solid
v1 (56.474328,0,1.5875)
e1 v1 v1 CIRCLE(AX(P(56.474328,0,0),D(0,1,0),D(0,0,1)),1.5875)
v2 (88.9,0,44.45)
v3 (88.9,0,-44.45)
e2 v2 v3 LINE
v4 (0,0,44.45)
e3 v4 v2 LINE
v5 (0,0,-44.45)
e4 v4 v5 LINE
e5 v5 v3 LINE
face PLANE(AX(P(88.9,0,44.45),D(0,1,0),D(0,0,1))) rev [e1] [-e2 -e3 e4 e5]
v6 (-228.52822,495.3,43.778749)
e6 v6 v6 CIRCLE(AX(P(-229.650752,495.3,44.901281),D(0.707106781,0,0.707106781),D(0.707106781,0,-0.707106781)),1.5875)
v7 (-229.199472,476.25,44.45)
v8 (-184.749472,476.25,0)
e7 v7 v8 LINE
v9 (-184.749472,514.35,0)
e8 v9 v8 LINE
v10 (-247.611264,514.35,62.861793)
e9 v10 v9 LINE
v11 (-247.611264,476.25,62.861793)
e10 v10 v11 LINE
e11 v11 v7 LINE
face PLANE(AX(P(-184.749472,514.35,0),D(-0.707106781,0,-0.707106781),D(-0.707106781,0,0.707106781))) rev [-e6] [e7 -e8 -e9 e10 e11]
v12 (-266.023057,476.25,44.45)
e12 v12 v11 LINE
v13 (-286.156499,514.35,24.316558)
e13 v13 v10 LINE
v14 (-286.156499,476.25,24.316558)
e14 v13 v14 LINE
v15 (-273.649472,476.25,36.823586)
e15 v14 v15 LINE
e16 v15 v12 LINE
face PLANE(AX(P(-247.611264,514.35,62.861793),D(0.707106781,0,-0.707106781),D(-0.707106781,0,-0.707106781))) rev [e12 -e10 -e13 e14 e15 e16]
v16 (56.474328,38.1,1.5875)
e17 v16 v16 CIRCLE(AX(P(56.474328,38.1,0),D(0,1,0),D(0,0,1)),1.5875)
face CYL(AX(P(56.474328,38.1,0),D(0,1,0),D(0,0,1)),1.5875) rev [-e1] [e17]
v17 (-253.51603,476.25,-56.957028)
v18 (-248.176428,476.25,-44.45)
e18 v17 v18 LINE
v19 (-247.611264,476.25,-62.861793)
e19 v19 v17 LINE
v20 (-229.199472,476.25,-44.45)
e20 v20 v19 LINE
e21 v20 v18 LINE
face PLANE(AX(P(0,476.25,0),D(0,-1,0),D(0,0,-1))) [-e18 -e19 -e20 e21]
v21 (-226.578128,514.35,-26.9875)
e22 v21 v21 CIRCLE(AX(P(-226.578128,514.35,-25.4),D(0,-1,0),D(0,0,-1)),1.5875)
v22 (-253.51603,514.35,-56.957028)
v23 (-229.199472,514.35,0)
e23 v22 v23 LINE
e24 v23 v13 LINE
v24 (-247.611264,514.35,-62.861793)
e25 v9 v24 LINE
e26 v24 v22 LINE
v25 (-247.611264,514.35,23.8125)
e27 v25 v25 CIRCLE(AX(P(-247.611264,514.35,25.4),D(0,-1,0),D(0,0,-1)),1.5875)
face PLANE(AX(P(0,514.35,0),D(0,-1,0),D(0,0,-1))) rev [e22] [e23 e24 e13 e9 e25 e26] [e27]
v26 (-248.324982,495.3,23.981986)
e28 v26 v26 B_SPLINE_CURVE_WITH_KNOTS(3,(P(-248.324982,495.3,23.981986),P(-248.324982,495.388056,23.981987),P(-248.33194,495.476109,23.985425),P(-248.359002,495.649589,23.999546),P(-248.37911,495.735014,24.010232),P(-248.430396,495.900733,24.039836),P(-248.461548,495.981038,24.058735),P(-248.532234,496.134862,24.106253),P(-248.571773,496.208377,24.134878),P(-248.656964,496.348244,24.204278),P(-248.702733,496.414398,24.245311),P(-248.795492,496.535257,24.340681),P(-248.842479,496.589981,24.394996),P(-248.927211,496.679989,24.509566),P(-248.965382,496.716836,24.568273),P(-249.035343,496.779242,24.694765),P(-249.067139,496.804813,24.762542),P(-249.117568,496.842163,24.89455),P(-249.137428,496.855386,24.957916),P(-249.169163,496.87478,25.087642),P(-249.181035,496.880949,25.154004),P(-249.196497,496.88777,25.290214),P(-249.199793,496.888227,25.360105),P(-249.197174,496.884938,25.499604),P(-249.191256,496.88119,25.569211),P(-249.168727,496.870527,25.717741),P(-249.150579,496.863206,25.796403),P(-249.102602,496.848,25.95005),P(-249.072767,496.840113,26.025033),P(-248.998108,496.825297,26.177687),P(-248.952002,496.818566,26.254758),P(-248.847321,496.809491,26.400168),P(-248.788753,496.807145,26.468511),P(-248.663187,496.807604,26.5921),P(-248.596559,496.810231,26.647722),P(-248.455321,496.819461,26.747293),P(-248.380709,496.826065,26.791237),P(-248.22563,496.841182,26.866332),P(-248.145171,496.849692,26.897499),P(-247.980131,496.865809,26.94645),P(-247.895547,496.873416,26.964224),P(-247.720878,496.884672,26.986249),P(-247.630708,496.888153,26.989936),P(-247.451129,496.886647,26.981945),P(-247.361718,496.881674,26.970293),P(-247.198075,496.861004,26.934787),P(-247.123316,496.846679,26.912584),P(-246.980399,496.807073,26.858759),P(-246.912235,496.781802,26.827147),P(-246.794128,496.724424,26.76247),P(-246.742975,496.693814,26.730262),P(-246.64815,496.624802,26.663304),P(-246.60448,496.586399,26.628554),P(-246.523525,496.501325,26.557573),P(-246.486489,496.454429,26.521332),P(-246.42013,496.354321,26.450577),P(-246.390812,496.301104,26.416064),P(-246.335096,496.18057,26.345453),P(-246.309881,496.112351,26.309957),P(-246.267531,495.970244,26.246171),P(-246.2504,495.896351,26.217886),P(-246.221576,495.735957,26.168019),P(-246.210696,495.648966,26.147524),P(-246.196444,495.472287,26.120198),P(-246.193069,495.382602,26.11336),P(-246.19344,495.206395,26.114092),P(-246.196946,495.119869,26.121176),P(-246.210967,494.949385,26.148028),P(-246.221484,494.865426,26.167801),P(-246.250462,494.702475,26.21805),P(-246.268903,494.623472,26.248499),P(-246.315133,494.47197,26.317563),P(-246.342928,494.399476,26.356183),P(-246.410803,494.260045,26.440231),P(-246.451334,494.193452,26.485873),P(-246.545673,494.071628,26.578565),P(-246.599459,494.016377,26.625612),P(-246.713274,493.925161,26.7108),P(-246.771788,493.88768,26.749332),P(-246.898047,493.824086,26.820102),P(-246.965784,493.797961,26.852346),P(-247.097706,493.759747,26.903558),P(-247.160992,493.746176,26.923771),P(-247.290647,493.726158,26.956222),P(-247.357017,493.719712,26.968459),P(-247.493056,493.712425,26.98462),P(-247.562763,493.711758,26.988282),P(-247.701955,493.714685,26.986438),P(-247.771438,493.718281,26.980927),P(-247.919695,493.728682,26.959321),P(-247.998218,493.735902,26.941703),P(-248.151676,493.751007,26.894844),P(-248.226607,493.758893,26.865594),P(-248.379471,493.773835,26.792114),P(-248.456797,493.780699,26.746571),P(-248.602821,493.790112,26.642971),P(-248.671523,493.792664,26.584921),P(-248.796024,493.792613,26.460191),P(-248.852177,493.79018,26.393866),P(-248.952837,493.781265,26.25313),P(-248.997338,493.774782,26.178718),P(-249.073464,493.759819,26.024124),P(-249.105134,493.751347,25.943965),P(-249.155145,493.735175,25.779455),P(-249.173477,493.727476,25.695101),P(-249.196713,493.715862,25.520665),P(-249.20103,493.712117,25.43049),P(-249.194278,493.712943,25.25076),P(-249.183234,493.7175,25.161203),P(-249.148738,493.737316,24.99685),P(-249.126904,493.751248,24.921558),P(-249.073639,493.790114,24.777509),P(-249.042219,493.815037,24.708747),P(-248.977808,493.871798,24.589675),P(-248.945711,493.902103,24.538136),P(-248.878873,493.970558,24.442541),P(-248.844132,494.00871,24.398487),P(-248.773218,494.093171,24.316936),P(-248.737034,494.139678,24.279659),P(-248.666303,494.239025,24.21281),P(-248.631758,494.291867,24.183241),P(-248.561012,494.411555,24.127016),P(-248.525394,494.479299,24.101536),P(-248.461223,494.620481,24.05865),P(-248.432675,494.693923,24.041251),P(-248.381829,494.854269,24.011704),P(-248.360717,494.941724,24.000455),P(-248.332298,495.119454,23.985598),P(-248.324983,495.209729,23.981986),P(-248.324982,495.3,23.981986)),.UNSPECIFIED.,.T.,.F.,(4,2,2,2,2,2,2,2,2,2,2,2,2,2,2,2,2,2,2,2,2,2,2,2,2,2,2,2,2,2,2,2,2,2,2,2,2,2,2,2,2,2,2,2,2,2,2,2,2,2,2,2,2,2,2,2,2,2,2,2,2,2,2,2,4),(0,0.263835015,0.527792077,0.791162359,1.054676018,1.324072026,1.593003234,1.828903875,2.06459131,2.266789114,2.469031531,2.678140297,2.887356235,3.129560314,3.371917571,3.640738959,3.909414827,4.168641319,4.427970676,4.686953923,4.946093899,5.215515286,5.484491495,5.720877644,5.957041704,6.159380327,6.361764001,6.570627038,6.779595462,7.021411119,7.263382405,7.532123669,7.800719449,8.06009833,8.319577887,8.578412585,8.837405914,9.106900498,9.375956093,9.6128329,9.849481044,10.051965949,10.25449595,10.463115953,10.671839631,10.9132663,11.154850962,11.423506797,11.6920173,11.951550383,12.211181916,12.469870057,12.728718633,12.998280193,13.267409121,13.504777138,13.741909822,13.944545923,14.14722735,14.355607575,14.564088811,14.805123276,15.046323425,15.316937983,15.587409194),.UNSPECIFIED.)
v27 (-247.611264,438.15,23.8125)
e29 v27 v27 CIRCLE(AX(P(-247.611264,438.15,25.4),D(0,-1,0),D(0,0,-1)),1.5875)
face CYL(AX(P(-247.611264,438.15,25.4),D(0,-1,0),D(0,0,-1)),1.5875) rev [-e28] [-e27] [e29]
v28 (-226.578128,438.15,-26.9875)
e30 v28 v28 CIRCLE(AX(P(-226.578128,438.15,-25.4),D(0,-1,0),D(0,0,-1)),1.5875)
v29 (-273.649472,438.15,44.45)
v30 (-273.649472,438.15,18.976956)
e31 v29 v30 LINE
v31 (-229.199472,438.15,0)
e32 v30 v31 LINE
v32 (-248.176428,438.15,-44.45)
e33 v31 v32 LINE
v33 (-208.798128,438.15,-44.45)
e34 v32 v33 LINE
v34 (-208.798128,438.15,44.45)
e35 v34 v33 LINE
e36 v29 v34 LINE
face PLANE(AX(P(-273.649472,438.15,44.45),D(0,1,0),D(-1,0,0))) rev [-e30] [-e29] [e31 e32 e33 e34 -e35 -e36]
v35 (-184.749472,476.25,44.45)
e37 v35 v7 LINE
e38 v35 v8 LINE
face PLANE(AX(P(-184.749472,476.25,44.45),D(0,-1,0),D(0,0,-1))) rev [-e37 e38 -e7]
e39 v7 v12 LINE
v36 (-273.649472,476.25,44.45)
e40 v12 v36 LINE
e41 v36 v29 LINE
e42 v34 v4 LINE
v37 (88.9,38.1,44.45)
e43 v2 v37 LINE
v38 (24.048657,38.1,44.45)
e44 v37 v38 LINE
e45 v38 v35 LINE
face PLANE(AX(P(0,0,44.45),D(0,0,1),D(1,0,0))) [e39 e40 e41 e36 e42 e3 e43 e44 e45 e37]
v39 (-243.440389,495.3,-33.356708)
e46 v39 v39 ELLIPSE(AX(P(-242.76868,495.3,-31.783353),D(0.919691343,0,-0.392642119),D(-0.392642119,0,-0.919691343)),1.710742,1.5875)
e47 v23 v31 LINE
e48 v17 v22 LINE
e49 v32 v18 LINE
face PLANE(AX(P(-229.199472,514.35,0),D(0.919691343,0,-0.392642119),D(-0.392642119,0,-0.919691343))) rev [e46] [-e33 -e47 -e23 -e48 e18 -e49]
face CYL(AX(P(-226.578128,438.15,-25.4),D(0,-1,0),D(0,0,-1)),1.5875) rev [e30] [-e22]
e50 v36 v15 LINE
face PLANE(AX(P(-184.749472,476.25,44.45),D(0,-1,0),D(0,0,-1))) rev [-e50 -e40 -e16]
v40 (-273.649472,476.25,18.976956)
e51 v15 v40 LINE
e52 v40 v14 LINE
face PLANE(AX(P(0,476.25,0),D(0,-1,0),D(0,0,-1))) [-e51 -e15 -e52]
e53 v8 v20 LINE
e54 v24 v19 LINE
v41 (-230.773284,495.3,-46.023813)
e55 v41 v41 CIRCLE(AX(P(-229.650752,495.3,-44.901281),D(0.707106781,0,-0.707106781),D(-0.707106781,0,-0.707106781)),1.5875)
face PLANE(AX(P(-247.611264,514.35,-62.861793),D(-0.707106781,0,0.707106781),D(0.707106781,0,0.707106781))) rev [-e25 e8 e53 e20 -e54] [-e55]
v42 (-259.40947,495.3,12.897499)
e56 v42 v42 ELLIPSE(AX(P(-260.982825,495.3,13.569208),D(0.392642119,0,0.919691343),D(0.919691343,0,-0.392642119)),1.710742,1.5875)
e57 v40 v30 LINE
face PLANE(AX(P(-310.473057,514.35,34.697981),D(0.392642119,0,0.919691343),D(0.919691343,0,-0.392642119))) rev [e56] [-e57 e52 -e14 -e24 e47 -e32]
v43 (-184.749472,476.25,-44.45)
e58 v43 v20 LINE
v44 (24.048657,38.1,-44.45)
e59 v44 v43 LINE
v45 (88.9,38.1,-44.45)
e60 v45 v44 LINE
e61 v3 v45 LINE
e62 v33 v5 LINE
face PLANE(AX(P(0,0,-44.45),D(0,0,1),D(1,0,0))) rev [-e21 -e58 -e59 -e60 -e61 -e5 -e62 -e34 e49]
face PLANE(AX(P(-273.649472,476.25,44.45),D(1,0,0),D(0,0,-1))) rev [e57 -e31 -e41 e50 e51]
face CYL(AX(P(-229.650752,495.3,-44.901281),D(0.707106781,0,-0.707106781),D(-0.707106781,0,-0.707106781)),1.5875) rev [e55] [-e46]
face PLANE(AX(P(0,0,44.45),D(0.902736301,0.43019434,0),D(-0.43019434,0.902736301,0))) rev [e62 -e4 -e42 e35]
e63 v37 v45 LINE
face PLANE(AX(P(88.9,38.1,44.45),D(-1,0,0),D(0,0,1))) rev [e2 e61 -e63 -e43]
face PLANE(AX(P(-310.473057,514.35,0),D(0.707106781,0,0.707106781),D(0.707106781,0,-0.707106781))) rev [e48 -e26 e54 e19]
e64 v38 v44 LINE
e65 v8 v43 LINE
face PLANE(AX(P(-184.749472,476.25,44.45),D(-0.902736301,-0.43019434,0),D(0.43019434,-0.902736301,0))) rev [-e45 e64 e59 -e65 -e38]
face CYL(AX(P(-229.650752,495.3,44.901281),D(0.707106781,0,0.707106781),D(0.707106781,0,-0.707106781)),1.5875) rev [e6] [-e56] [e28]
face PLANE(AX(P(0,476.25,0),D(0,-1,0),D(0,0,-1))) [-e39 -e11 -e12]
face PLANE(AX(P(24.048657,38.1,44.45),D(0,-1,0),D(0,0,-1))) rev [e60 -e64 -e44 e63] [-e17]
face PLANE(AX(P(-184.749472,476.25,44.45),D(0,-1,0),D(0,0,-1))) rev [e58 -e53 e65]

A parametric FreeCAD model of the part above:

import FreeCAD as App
import Part
import Sketcher
from FreeCAD import Vector
Q = App.Units.Quantity


def add_polygon(sketch, points):
    """Adds a closed chain of lines whose ends are joined by coincident constraints."""
    first, n = sketch.GeometryCount, len(points)
    for a, b in zip(points, points[1:] + points[:1]):
        sketch.addGeometry(Part.LineSegment(App.Vector(*a, 0), App.Vector(*b, 0)), False)
    for i in range(n):
        sketch.addConstraint(Sketcher.Constraint("Coincident", first + i, 2, first + (i + 1) % n, 1))

doc = App.newDocument("Part")
body = doc.addObject("PartDesign::Body", "Body")

sketch1 = body.newObject("Sketcher::SketchObject", "Sketch")
sketch1.AttachmentSupport = (doc.getObject("XY_Plane"), [""])
sketch1.MapMode = "FlatFace"
add_polygon(sketch1, [(-208.798128, 438.15), (0, 0), (88.9, 0), (88.9, 38.1), (24.048657, 38.1), (-184.749472, 476.25), (-273.649472, 476.25), (-273.649472, 438.15)])
sketch1.addConstraint([
    Sketcher.Constraint("Horizontal", 1),
    Sketcher.Constraint("Vertical", 2),
    Sketcher.Constraint("Horizontal", 3),
    Sketcher.Constraint("Horizontal", 5),
    Sketcher.Constraint("Vertical", 6),
    Sketcher.Constraint("Horizontal", 7),
    Sketcher.Constraint("Coincident", 0, 2, -1, 1),
    Sketcher.Constraint("Parallel", 0, 4),
    Sketcher.Constraint("Equal", 1, 5),
    Sketcher.Constraint("Equal", 3, 7),
    Sketcher.Constraint("DistanceX", 1, 1, 1, 2, Q("3.5 in")),
    Sketcher.Constraint("DistanceY", 2, 1, 2, 2, Q("1.5 in")),
    Sketcher.Constraint("DistanceY", -1, 1, 4, 2, Q("18.75 in")),
    Sketcher.Constraint("DistanceX", 3, 2, 3, 1, Q("64.851343 mm")),
    Sketcher.Constraint("DistanceX", 4, 2, -1, 1, Q("184.749472 mm")),
])
pad1 = body.newObject("PartDesign::Pad", "Pad")
pad1.Profile = sketch1
pad1.Length = Q("3.5 in")
pad1.Midplane = True

sketch2 = body.newObject("Sketcher::SketchObject", "Sketch001")
sketch2.AttachmentSupport = (doc.getObject("XZ_Plane"), [""])
sketch2.MapMode = "FlatFace"
sketch2.AttachmentOffset = App.Placement(Vector(0, 0, -1.5 * 25.4), App.Rotation())
sketch2.addGeometry(Part.Circle(Vector(56.474328, 0, 0), Vector(0, 0, 1), 1.5875), False)
sketch2.addConstraint([
    Sketcher.Constraint("PointOnObject", 0, 3, -1),
    Sketcher.Constraint("Diameter", 0, Q("0.125 in")),
    Sketcher.Constraint("DistanceX", -1, 1, 0, 3, Q("56.474328 mm")),
])
doc.recompute()
hole = body.newObject("PartDesign::Hole", "Hole")
hole.Profile = sketch2
hole.ThreadType = "None"
hole.Diameter = Q("0.125 in")
hole.DepthType = "ThroughAll"
hole.Reversed = True

sketch3 = body.newObject("Sketcher::SketchObject", "Sketch002")
sketch3.AttachmentSupport = (doc.getObject("XZ_Plane"), [""])
sketch3.MapMode = "FlatFace"
sketch3.AttachmentOffset = App.Placement(Vector(0, 0, -18.75 * 25.4), App.Rotation())
add_polygon(sketch3, [(-184.749472, 0), (-247.611264, -62.861793), (-310.473057, 0), (-247.611264, 62.861793)])
sketch3.addConstraint([
    Sketcher.Constraint("Symmetric", 0, 2, 2, 2, -1),
    Sketcher.Constraint("PointOnObject", 1, 2, -1),
    Sketcher.Constraint("PointOnObject", 3, 2, -1),
    Sketcher.Constraint("Perpendicular", 0, 1),
    Sketcher.Constraint("Perpendicular", 1, 2),
    Sketcher.Constraint("Distance", 0, Q("3.5 in")),
    Sketcher.Constraint("DistanceX", 3, 2, -1, 1, Q("184.749472 mm")),
])
pad2 = body.newObject("PartDesign::Pad", "Pad001")
pad2.Profile = sketch3
pad2.Length = Q("1.5 in")
pad2.Reversed = True

sketch4 = body.newObject("Sketcher::SketchObject", "Sketch003")
sketch4.AttachmentSupport = (doc.getObject("XZ_Plane"), [""])
sketch4.MapMode = "FlatFace"
sketch4.AttachmentOffset = App.Placement(Vector(0, 0, -17.25 * 25.4), App.Rotation())
add_polygon(sketch4, [(-229.199472, 0), (-310.473057, 34.697981), (-310.473057, -190.368301)])
sketch4.addConstraint([
    Sketcher.Constraint("Vertical", 1),
    Sketcher.Constraint("PointOnObject", 2, 2, -1),
    Sketcher.Constraint("Perpendicular", 0, 2),
    Sketcher.Constraint("DistanceY", 1, 2, -1, 1, Q("190.368301 mm")),
    Sketcher.Constraint("Distance", 2, Q("206.991511 mm")),
    Sketcher.Constraint("DistanceX", 2, 2, -1, 1, Q("229.199472 mm")),
])
pocket1 = body.newObject("PartDesign::Pocket", "Pocket")
pocket1.Profile = sketch4
pocket1.Type = "ThroughAll"
pocket1.Midplane = True

sketch5 = body.newObject("Sketcher::SketchObject", "Sketch004")
sketch5.Placement = App.Placement(Vector(-92.374736, 0, -92.374736), App.Rotation(Vector(0.707106781, 0, -0.707106781), Vector(0, 0.999999999, 0), Vector(0.707106781, 0, 0.707106781), "ZXY"))
sketch5.addGeometry(Part.Circle(Vector(-194.137604, 495.299999, 0), Vector(0, 0, 1), 1.5875), False)
sketch5.addConstraint([
    Sketcher.Constraint("Diameter", 0, Q("0.125 in")),
    Sketcher.Constraint("DistanceY", -1, 1, 0, 3, Q("19.5 in")),
    Sketcher.Constraint("DistanceX", 0, 3, -1, 1, Q("194.137604 mm")),
])
doc.recompute()
hole2 = body.newObject("PartDesign::Hole", "Hole001")
hole2.Profile = sketch5
hole2.ThreadType = "None"
hole2.Diameter = Q("0.125 in")
hole2.DepthType = "ThroughAll"

sketch6 = body.newObject("Sketcher::SketchObject", "Sketch005")
sketch6.Placement = App.Placement(Vector(-92.374736, 0, 92.374736), App.Rotation(Vector(-0.707106781, 0, -0.707106781), Vector(0, 0.999999999, 0), Vector(0.707106781, 0, -0.707106781), "ZXY"))
sketch6.addGeometry(Part.Circle(Vector(194.137604, 495.299999, 0), Vector(0, 0, 1), 1.5875), False)
sketch6.addConstraint([
    Sketcher.Constraint("Diameter", 0, Q("0.125 in")),
    Sketcher.Constraint("DistanceY", -1, 1, 0, 3, Q("19.5 in")),
    Sketcher.Constraint("DistanceX", -1, 1, 0, 3, Q("194.137604 mm")),
])
doc.recompute()
hole3 = body.newObject("PartDesign::Hole", "Hole002")
hole3.Profile = sketch6
hole3.ThreadType = "None"
hole3.Diameter = Q("0.125 in")
hole3.DepthType = "ThroughAll"

sketch7 = body.newObject("Sketcher::SketchObject", "Sketch006")
sketch7.AttachmentSupport = (doc.getObject("XZ_Plane"), [""])
sketch7.MapMode = "FlatFace"
sketch7.AttachmentOffset = App.Placement(Vector(0, 0, -17.25 * 25.4), App.Rotation())
sketch7.addGeometry([
    Part.Circle(Vector(-247.611264, 25.4, 0), Vector(0, 0, 1), 1.5875),
    Part.Circle(Vector(-226.578128, -25.4, 0), Vector(0, 0, 1), 1.5875),
], False)
sketch7.addConstraint([
    Sketcher.Constraint("Equal", 0, 1),
    Sketcher.Constraint("Diameter", 0, Q("0.125 in")),
    Sketcher.Constraint("DistanceY", -1, 1, 0, 3, Q("1 in")),
    Sketcher.Constraint("DistanceY", 1, 3, -1, 1, Q("1 in")),
    Sketcher.Constraint("DistanceX", 1, 3, -1, 1, Q("226.578128 mm")),
    Sketcher.Constraint("DistanceX", 0, 3, -1, 1, Q("247.611264 mm")),
])
doc.recompute()
hole4 = body.newObject("PartDesign::Hole", "Hole003")
hole4.Profile = sketch7
hole4.ThreadType = "None"
hole4.Diameter = Q("0.125 in")
hole4.DepthType = "ThroughAll"

doc.recompute()
